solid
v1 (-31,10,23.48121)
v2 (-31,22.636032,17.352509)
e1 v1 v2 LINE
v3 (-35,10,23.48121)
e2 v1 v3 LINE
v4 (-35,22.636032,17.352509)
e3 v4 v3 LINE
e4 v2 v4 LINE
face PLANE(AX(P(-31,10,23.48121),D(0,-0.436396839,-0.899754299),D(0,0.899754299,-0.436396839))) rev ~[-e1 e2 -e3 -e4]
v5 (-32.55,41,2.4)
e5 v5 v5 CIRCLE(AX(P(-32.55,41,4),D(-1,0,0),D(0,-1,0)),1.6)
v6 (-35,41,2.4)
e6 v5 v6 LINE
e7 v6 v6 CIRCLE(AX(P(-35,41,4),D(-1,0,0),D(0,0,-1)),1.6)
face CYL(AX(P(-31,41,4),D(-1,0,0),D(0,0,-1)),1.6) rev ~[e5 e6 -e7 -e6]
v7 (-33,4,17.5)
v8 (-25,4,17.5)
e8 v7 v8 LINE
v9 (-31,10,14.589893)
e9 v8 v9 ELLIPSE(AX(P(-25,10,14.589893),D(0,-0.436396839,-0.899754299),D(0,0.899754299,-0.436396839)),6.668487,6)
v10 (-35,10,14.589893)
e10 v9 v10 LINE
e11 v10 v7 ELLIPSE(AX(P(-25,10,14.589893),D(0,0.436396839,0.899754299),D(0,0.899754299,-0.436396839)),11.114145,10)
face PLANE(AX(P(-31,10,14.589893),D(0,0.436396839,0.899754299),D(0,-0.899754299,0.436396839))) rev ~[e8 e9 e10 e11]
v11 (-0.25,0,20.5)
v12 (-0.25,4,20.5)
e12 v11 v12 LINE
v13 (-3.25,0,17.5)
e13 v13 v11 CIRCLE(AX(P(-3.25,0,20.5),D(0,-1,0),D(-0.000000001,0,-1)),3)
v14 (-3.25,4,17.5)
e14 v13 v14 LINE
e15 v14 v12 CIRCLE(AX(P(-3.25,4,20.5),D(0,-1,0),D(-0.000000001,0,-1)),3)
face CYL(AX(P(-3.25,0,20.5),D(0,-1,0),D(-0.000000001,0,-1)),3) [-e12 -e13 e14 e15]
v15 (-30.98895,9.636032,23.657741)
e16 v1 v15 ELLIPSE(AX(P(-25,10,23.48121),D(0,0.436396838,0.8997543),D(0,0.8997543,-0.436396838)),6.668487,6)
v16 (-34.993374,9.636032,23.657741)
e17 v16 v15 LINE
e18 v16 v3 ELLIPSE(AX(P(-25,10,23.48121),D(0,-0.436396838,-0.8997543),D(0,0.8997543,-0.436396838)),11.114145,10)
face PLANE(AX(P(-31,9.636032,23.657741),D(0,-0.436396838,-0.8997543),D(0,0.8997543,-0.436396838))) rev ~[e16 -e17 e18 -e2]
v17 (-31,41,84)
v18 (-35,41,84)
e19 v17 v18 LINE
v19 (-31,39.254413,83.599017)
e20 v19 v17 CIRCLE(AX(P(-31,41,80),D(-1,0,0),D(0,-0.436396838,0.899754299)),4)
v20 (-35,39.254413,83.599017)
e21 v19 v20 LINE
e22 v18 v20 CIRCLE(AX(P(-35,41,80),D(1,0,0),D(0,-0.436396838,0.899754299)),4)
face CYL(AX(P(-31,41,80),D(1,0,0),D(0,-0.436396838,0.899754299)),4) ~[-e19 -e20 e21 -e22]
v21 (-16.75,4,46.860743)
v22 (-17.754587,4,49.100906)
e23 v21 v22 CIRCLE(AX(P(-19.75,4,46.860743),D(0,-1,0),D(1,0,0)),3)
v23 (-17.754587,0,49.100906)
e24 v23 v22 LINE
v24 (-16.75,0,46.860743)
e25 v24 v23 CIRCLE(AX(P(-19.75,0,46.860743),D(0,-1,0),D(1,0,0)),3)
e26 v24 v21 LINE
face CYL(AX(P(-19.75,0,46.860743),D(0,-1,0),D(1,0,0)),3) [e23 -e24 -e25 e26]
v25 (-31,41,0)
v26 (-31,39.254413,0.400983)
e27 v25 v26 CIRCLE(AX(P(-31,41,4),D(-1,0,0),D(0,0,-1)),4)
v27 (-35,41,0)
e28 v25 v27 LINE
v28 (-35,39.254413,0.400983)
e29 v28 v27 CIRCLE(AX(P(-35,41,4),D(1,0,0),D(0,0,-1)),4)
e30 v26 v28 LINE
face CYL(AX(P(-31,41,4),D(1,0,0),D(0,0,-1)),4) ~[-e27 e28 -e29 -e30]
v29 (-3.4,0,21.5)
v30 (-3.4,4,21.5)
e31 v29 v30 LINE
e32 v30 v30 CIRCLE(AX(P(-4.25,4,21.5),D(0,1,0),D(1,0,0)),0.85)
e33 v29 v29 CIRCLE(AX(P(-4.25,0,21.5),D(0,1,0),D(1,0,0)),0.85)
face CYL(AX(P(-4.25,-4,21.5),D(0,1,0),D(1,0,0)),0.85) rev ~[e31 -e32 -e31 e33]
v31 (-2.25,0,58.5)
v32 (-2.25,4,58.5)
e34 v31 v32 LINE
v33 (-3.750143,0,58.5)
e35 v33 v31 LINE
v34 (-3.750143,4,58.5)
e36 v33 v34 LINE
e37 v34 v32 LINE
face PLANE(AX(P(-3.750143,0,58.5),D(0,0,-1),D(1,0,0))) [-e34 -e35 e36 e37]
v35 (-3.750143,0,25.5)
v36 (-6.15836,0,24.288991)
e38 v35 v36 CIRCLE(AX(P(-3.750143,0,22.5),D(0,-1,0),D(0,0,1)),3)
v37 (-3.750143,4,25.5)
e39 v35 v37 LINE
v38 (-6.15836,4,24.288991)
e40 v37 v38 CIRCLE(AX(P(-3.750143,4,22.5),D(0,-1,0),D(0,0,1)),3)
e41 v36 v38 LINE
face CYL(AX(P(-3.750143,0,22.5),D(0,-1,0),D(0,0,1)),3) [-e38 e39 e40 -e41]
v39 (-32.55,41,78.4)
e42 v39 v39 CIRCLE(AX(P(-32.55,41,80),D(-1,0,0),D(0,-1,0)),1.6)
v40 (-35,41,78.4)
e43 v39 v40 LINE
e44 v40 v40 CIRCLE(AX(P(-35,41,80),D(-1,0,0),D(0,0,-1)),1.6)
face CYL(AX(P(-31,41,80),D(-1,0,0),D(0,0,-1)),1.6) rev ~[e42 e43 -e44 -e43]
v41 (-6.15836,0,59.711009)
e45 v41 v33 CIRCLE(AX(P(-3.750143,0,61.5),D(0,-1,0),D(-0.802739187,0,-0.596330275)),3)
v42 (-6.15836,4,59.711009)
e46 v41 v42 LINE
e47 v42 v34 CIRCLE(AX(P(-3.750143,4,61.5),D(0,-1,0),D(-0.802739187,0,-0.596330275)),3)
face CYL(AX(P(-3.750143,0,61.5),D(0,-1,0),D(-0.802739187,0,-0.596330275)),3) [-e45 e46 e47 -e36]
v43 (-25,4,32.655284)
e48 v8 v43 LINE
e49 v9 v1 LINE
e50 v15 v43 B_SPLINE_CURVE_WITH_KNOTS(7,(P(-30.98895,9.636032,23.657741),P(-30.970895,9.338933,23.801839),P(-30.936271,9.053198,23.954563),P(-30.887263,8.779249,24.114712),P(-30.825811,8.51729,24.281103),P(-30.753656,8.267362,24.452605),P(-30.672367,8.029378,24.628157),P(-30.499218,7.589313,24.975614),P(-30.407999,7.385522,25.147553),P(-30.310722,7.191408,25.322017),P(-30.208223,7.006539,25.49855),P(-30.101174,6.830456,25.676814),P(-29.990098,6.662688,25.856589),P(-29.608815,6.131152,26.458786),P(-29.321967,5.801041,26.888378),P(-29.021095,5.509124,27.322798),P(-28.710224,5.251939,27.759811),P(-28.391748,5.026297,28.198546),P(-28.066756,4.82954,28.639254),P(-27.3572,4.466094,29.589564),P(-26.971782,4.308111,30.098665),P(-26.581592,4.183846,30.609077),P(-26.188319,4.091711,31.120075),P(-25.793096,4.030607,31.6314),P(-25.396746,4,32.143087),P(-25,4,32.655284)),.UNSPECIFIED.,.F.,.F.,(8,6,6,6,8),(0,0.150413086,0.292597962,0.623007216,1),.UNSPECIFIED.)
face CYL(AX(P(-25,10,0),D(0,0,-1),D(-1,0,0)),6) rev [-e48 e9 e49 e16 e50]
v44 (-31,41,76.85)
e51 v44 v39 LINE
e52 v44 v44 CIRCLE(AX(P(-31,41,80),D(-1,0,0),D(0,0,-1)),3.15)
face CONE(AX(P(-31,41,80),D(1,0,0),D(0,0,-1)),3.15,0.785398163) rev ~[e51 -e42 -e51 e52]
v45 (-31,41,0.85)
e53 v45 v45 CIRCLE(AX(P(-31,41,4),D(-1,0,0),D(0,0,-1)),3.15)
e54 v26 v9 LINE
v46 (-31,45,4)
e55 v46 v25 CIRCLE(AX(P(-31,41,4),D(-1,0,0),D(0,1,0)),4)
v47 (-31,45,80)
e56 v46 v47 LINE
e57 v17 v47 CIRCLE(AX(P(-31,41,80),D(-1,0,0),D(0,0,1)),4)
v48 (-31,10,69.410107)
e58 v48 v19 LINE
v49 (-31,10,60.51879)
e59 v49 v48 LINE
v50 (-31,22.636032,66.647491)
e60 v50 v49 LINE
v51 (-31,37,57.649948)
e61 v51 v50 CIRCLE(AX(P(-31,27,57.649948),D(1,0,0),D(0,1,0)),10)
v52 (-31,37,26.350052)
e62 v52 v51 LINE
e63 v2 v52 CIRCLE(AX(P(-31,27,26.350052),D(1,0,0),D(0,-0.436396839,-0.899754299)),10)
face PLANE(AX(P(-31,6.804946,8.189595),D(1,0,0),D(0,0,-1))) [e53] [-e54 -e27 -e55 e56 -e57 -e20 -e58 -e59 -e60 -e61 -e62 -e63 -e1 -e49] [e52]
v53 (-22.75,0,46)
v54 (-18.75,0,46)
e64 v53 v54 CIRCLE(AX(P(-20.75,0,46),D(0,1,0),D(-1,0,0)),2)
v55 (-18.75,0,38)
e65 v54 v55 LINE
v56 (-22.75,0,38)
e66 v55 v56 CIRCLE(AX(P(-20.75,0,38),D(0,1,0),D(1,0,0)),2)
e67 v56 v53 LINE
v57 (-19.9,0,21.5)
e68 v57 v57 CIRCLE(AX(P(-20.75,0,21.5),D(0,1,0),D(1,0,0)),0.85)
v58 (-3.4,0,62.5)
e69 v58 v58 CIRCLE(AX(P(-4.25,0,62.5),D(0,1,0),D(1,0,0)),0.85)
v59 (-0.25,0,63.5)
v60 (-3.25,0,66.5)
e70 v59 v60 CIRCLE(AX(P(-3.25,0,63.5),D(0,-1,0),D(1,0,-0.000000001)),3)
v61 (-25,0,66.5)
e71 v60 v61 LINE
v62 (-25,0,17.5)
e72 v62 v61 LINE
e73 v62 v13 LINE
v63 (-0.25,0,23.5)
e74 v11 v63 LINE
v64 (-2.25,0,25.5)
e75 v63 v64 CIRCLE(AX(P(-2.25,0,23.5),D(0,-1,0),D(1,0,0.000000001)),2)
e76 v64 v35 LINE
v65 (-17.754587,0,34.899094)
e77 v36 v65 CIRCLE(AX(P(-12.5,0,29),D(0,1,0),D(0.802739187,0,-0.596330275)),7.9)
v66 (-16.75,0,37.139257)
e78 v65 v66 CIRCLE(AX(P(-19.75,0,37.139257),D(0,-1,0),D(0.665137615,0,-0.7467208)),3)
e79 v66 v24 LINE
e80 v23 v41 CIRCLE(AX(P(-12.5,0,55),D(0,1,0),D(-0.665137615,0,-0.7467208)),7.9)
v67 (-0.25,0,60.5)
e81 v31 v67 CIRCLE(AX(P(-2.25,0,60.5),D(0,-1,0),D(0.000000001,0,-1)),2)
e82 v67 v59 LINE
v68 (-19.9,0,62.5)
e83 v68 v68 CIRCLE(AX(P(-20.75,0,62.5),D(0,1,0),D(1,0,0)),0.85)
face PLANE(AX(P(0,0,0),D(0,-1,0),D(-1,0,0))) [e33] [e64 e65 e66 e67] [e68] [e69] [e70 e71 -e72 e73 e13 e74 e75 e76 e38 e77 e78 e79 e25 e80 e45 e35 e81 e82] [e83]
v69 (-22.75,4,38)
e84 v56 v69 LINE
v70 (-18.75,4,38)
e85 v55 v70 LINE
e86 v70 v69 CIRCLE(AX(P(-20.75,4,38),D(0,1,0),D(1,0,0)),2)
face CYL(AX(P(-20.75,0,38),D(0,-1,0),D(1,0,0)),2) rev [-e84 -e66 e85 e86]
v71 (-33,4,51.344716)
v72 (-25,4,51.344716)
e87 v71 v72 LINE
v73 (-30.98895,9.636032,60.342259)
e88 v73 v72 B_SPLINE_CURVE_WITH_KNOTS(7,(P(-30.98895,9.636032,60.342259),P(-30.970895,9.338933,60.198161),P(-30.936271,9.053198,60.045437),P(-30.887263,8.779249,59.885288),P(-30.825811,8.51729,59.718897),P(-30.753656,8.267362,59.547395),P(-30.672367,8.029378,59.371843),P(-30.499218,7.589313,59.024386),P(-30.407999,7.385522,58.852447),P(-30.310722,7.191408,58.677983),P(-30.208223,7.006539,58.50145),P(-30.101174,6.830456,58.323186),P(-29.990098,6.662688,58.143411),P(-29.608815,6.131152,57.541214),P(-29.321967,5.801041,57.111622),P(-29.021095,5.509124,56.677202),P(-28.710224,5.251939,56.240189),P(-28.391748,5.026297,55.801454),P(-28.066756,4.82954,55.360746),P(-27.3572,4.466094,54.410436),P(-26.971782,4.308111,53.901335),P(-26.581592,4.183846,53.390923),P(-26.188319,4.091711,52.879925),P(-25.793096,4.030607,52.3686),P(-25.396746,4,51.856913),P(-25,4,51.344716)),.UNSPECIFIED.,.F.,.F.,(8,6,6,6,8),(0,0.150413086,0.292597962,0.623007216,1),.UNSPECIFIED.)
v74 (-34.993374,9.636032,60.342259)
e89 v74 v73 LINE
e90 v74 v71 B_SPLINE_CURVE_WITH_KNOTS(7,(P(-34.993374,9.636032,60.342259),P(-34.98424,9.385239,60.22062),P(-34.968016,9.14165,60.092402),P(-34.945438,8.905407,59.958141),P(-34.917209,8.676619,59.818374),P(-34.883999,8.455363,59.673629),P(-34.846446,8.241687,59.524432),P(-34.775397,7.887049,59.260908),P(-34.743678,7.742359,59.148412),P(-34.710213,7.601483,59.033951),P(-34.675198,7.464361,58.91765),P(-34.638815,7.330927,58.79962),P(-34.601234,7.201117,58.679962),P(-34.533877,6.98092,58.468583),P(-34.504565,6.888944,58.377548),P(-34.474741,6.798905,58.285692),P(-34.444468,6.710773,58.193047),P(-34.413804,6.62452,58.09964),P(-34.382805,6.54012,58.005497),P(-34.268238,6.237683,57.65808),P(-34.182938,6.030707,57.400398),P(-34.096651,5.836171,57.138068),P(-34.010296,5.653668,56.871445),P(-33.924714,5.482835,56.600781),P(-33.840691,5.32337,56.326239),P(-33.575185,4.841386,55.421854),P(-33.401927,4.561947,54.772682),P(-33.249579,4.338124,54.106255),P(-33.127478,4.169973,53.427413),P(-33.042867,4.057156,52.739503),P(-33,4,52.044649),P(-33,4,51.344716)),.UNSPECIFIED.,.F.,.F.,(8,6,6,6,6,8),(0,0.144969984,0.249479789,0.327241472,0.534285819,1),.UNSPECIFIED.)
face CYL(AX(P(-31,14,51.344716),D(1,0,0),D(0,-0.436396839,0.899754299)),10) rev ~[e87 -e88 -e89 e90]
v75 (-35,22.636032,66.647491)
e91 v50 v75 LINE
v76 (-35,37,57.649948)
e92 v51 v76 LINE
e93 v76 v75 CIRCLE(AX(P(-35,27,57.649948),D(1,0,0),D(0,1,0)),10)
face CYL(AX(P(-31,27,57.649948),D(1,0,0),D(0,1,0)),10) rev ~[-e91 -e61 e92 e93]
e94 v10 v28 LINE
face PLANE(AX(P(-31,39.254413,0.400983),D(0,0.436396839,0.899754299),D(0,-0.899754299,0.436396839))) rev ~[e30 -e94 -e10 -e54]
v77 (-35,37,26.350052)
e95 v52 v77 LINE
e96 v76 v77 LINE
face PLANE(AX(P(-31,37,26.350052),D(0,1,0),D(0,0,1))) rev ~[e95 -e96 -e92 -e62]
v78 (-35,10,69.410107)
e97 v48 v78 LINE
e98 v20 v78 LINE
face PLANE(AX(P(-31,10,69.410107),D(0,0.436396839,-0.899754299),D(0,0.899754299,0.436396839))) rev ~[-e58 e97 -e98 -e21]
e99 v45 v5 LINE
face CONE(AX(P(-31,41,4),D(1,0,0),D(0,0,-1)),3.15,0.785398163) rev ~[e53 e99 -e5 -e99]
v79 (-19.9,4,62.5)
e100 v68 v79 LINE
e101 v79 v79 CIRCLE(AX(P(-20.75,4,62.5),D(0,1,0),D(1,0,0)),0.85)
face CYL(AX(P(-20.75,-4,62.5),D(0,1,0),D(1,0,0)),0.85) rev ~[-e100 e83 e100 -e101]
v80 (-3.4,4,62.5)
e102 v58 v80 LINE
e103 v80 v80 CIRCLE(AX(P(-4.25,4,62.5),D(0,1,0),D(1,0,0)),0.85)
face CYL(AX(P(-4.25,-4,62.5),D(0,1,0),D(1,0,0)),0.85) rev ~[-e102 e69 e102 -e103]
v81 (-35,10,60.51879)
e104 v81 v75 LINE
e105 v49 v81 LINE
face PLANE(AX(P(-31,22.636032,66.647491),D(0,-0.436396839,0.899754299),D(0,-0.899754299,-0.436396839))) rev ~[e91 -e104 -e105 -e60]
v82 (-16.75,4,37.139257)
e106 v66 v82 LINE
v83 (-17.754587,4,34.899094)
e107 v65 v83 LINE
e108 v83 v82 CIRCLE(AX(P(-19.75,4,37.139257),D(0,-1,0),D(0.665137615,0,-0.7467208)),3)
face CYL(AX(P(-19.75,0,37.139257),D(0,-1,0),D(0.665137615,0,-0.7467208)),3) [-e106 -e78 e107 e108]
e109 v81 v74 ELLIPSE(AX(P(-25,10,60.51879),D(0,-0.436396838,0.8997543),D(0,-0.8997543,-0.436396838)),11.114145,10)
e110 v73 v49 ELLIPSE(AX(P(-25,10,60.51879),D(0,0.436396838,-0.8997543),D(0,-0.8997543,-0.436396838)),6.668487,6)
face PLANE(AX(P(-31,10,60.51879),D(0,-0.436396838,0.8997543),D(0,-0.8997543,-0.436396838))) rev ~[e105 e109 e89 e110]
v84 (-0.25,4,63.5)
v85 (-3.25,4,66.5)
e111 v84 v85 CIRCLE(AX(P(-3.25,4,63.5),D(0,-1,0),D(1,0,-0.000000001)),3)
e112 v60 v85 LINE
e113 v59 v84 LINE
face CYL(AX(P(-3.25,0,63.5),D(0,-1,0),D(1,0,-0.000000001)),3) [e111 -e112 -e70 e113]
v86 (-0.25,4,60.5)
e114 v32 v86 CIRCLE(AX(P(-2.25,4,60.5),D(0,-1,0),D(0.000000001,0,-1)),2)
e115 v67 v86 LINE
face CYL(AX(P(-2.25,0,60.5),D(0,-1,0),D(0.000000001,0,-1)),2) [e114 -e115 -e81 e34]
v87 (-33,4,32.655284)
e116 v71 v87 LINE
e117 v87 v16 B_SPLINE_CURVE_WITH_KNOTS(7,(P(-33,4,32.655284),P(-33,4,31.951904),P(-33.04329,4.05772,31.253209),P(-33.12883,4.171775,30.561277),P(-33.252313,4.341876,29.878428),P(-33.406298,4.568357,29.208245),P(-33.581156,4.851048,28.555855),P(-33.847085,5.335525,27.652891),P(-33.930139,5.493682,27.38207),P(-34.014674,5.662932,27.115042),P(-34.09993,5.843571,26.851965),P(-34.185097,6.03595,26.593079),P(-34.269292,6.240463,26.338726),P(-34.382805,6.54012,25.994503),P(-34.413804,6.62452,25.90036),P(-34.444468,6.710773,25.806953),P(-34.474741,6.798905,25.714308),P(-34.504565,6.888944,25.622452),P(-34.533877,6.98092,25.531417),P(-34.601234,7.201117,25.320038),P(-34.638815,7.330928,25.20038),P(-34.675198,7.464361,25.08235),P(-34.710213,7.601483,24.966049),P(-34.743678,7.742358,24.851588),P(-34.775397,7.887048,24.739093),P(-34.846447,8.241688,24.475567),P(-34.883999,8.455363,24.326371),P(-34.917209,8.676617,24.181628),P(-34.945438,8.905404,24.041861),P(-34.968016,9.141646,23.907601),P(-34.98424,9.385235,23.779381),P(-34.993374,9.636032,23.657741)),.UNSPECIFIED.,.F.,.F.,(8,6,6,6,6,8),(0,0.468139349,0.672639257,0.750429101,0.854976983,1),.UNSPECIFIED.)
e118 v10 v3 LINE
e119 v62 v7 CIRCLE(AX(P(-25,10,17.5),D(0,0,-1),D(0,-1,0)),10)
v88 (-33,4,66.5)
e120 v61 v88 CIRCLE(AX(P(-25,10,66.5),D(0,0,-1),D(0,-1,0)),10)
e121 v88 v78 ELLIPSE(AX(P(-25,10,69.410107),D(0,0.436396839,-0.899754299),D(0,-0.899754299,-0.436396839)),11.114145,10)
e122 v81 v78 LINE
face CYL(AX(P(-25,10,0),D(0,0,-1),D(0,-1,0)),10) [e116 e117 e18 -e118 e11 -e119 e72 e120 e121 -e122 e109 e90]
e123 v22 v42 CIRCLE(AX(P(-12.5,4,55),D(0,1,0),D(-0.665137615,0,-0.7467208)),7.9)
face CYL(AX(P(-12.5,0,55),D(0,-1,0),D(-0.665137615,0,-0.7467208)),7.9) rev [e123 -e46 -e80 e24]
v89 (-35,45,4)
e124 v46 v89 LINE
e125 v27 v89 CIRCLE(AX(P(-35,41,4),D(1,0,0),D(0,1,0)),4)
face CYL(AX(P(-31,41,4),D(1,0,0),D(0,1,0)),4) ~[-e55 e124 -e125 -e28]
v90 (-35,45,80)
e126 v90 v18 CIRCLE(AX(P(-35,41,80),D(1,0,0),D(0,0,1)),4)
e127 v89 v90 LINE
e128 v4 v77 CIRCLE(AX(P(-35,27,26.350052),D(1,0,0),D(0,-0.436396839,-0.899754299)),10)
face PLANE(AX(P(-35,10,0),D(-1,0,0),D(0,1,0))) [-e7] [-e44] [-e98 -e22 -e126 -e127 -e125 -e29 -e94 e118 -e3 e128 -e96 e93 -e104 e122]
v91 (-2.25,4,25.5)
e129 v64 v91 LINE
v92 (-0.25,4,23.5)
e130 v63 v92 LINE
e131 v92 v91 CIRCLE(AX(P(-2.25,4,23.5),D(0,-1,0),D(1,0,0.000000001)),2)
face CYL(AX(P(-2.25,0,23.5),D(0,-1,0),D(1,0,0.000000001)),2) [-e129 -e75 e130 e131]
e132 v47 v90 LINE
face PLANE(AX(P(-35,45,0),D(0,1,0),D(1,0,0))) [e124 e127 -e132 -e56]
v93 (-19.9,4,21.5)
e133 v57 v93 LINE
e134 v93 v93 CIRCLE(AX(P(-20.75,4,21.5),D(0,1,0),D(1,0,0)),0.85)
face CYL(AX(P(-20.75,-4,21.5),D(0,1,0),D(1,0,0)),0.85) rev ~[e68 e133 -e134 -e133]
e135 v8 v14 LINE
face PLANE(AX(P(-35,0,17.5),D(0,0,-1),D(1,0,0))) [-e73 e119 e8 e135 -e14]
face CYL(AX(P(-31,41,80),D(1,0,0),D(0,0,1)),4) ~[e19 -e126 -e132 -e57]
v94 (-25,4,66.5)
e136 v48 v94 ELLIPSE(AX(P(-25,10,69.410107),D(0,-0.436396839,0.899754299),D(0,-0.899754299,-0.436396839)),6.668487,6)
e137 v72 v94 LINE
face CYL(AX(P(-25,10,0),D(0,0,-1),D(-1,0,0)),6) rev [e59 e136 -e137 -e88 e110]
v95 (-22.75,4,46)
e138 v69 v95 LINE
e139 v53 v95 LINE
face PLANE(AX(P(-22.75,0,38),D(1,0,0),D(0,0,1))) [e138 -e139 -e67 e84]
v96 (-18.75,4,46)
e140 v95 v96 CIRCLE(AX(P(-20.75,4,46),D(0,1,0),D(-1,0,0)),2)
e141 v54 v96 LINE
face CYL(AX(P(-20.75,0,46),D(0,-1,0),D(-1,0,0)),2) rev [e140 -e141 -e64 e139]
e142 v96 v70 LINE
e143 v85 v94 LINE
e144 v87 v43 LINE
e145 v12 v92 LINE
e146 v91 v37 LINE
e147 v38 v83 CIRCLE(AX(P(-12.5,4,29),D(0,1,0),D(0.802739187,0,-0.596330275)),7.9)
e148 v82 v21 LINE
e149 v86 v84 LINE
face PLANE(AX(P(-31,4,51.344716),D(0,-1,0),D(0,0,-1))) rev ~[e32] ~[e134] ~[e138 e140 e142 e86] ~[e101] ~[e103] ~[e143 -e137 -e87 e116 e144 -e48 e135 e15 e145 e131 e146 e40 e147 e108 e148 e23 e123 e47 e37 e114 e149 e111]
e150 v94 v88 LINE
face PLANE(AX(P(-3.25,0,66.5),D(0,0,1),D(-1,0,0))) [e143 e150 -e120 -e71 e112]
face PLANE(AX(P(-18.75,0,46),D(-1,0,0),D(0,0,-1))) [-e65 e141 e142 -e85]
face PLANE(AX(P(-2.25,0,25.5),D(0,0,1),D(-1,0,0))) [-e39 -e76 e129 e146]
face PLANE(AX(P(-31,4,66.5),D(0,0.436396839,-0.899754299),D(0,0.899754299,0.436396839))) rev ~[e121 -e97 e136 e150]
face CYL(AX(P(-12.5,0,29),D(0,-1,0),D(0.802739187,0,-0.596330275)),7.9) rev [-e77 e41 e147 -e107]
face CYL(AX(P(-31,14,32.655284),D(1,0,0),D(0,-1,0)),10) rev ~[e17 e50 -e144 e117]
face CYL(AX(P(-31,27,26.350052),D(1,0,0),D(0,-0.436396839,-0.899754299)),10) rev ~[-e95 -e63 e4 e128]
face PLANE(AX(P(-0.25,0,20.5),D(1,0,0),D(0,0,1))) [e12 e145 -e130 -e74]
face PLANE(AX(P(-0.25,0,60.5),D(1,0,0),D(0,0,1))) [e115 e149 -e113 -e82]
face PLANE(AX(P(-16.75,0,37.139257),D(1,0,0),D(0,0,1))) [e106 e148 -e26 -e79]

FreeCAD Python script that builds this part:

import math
import FreeCAD as App
import Part
import Sketcher

doc = App.newDocument("Part")
body = doc.addObject("PartDesign::Body", "Body")

sketch1 = body.newObject("Sketcher::SketchObject", "Sketch")
sketch1.AttachmentSupport = (doc.getObject("XY_Plane"), [""])
sketch1.MapMode = "FlatFace"
sketch1.addGeometry(Part.LineSegment(App.Vector(-25, 0, 0), App.Vector(0, 0, 0)), False)
sketch1.addGeometry(Part.LineSegment(App.Vector(0, 0, 0), App.Vector(0, 4, 0)), False)
sketch1.addGeometry(Part.LineSegment(App.Vector(0, 4, 0), App.Vector(-25, 4, 0)), False)
sketch1.addGeometry(Part.ArcOfCircle(Part.Circle(App.Vector(-25, 10, 0), App.Vector(0, 0, 1), 6), math.radians(180), math.radians(270)), False)
sketch1.addGeometry(Part.LineSegment(App.Vector(-31, 10, 0), App.Vector(-31, 45, 0)), False)
sketch1.addGeometry(Part.LineSegment(App.Vector(-31, 45, 0), App.Vector(-35, 45, 0)), False)
sketch1.addGeometry(Part.LineSegment(App.Vector(-35, 45, 0), App.Vector(-35, 10, 0)), False)
sketch1.addGeometry(Part.ArcOfCircle(Part.Circle(App.Vector(-25, 10, 0), App.Vector(0, 0, 1), 10), math.radians(180), math.radians(270)), False)
sketch1.addConstraint(Sketcher.Constraint("Coincident", 0, 2, 1, 1))
sketch1.addConstraint(Sketcher.Constraint("Coincident", 1, 2, 2, 1))
sketch1.addConstraint(Sketcher.Constraint("Tangent", 2, 2, 3, 2))
sketch1.addConstraint(Sketcher.Constraint("Tangent", 3, 1, 4, 1))
sketch1.addConstraint(Sketcher.Constraint("Coincident", 4, 2, 5, 1))
sketch1.addConstraint(Sketcher.Constraint("Coincident", 5, 2, 6, 1))
sketch1.addConstraint(Sketcher.Constraint("Tangent", 6, 2, 7, 1))
sketch1.addConstraint(Sketcher.Constraint("Tangent", 7, 2, 0, 1))
sketch1.addConstraint(Sketcher.Constraint("Horizontal", 0))
sketch1.addConstraint(Sketcher.Constraint("Vertical", 1))
sketch1.addConstraint(Sketcher.Constraint("Horizontal", 2))
sketch1.addConstraint(Sketcher.Constraint("Vertical", 4))
sketch1.addConstraint(Sketcher.Constraint("Horizontal", 5))
sketch1.addConstraint(Sketcher.Constraint("Vertical", 6))
sketch1.addConstraint(Sketcher.Constraint("Coincident", 0, 2, -1, 1))
sketch1.addConstraint(Sketcher.Constraint("Coincident", 7, 3, 3, 3))
sketch1.addConstraint(Sketcher.Constraint("Radius", 3, 6.0))
sketch1.addConstraint(Sketcher.Constraint("Radius", 7, 10.0))
sketch1.addConstraint(Sketcher.Constraint("DistanceX", 0, 1, 0, 2, 25.0))
sketch1.addConstraint(Sketcher.Constraint("DistanceY", 4, 1, 4, 2, 35.0))
pad1 = body.newObject("PartDesign::Pad", "Pad")
pad1.Profile = sketch1
pad1.Length = 84

sketch2 = body.newObject("Sketcher::SketchObject", "Sketch001")
sketch2.AttachmentSupport = (doc.getObject("YZ_Plane"), [""])
sketch2.MapMode = "FlatFace"
sketch2.AttachmentOffset = App.Placement(App.Vector(0, 0, -31), App.Rotation())
sketch2.addGeometry(Part.Circle(App.Vector(41, 4, 0), App.Vector(0, 0, 1), 1.6), False)
sketch2.addGeometry(Part.Circle(App.Vector(41, 80, 0), App.Vector(0, 0, 1), 1.6), False)
sketch2.addConstraint(Sketcher.Constraint("Equal", 0, 1))
sketch2.addConstraint(Sketcher.Constraint("Vertical", 0, 3, 1, 3))
sketch2.addConstraint(Sketcher.Constraint("Diameter", 0, 3.2))
sketch2.addConstraint(Sketcher.Constraint("DistanceX", -1, 1, 0, 3, 41.0))
sketch2.addConstraint(Sketcher.Constraint("DistanceY", -1, 1, 0, 3, 4.0))
sketch2.addConstraint(Sketcher.Constraint("DistanceY", -1, 1, 1, 3, 80.0))
doc.recompute()
hole = body.newObject("PartDesign::Hole", "Hole")
hole.Profile = sketch2
hole.ThreadType = "None"
hole.Diameter = 3.2
hole.DepthType = "Dimension"
hole.Depth = 4
hole.DrillPoint = "Flat"
hole.HoleCutType = "Countersink"
hole.HoleCutDiameter = 6.3
hole.HoleCutCountersinkAngle = 90

sketch3 = body.newObject("Sketcher::SketchObject", "Sketch002")
sketch3.AttachmentSupport = (doc.getObject("XZ_Plane"), [""])
sketch3.MapMode = "FlatFace"
sketch3.addGeometry(Part.Circle(App.Vector(-20.8, 21.5, 0), App.Vector(0, 0, 1), 0.8), False)
sketch3.addGeometry(Part.Circle(App.Vector(-20.8, 62.5, 0), App.Vector(0, 0, 1), 0.8), False)
sketch3.addGeometry(Part.Circle(App.Vector(-4.2, 62.5, 0), App.Vector(0, 0, 1), 0.8), False)
sketch3.addGeometry(Part.Circle(App.Vector(-4.2, 21.5, 0), App.Vector(0, 0, 1), 0.8), False)
sketch3.addConstraint(Sketcher.Constraint("Equal", 0, 1))
sketch3.addConstraint(Sketcher.Constraint("Equal", 1, 2))
sketch3.addConstraint(Sketcher.Constraint("Equal", 2, 3))
sketch3.addConstraint(Sketcher.Constraint("Horizontal", 1, 3, 2, 3))
sketch3.addConstraint(Sketcher.Constraint("Horizontal", 0, 3, 3, 3))
sketch3.addConstraint(Sketcher.Constraint("Vertical", 0, 3, 1, 3))
sketch3.addConstraint(Sketcher.Constraint("Vertical", 2, 3, 3, 3))
sketch3.addConstraint(Sketcher.Constraint("Diameter", 0, 1.7))
sketch3.addConstraint(Sketcher.Constraint("DistanceY", 0, 3, 1, 3, 41.0))
sketch3.addConstraint(Sketcher.Constraint("DistanceY", -1, 1, 0, 3, 21.5))
sketch3.addConstraint(Sketcher.Constraint("DistanceX", 1, 3, 2, 3, 16.5))
sketch3.addConstraint(Sketcher.Constraint("DistanceX", 0, 3, -1, 1, 20.75))
doc.recompute()
hole2 = body.newObject("PartDesign::Hole", "Hole001")
hole2.Profile = sketch3
hole2.ThreadType = "None"
hole2.Diameter = 1.7
hole2.DepthType = "Dimension"
hole2.Depth = 4
hole2.DrillPoint = "Flat"

sketch4 = body.newObject("Sketcher::SketchObject", "Sketch003")
sketch4.AttachmentSupport = (doc.getObject("XZ_Plane"), [""])
sketch4.MapMode = "FlatFace"
sketch4.addGeometry(Part.LineSegment(App.Vector(-3.2, 17.5, 0), App.Vector(-35, 17.5, 0)), False)
sketch4.addGeometry(Part.LineSegment(App.Vector(-35, 17.5, 0), App.Vector(-35, 0, 0)), False)
sketch4.addGeometry(Part.LineSegment(App.Vector(-35, 0, 0), App.Vector(0, 0, 0)), False)
sketch4.addGeometry(Part.LineSegment(App.Vector(0, 0, 0), App.Vector(0, 84, 0)), False)
sketch4.addGeometry(Part.LineSegment(App.Vector(0, 84, 0), App.Vector(-35, 84, 0)), False)
sketch4.addGeometry(Part.LineSegment(App.Vector(-35, 84, 0), App.Vector(-35, 66.5, 0)), False)
sketch4.addGeometry(Part.LineSegment(App.Vector(-35, 66.5, 0), App.Vector(-3.2, 66.5, 0)), False)
sketch4.addGeometry(Part.ArcOfCircle(Part.Circle(App.Vector(-3.2, 63.5, 0), App.Vector(0, 0, 1), 3), math.radians(0), math.radians(90)), False)
sketch4.addGeometry(Part.LineSegment(App.Vector(-0.2, 63.5, 0), App.Vector(-0.2, 60.5, 0)), False)
sketch4.addGeometry(Part.ArcOfCircle(Part.Circle(App.Vector(-2.3, 60.5, 0), App.Vector(0, 0, 1), 2), math.radians(-90), math.radians(0)), False)
sketch4.addGeometry(Part.LineSegment(App.Vector(-2.2, 58.5, 0), App.Vector(-3.8, 58.5, 0)), False)
sketch4.addGeometry(Part.ArcOfCircle(Part.Circle(App.Vector(-3.8, 61.5, 0), App.Vector(0, 0, 1), 3), math.radians(-143), math.radians(-90)), False)
sketch4.addGeometry(Part.ArcOfCircle(Part.Circle(App.Vector(-12.5, 55, 0), App.Vector(0, 0, 1), 7.9), math.radians(37), math.radians(228)), False)
sketch4.addGeometry(Part.ArcOfCircle(Part.Circle(App.Vector(-19.8, 46.9, 0), App.Vector(0, 0, 1), 3), math.radians(0), math.radians(48)), False)
sketch4.addGeometry(Part.LineSegment(App.Vector(-16.8, 46.9, 0), App.Vector(-16.8, 37.1, 0)), False)
sketch4.addGeometry(Part.ArcOfCircle(Part.Circle(App.Vector(-19.8, 37.1, 0), App.Vector(0, 0, 1), 3), math.radians(-48), math.radians(0)), False)
sketch4.addGeometry(Part.ArcOfCircle(Part.Circle(App.Vector(-12.5, 29, 0), App.Vector(0, 0, 1), 7.9), math.radians(132), math.radians(323)), False)
sketch4.addGeometry(Part.ArcOfCircle(Part.Circle(App.Vector(-3.8, 22.5, 0), App.Vector(0, 0, 1), 3), math.radians(90), math.radians(143)), False)
sketch4.addGeometry(Part.LineSegment(App.Vector(-3.8, 25.5, 0), App.Vector(-2.2, 25.5, 0)), False)
sketch4.addGeometry(Part.ArcOfCircle(Part.Circle(App.Vector(-2.3, 23.5, 0), App.Vector(0, 0, 1), 2), math.radians(0), math.radians(90)), False)
sketch4.addGeometry(Part.LineSegment(App.Vector(-0.2, 23.5, 0), App.Vector(-0.2, 20.5, 0)), False)
sketch4.addGeometry(Part.ArcOfCircle(Part.Circle(App.Vector(-3.2, 20.5, 0), App.Vector(0, 0, 1), 3), math.radians(-90), math.radians(0)), False)
sketch4.addGeometry(Part.LineSegment(App.Vector(-18.8, 38, 0), App.Vector(-18.8, 46, 0)), False)
sketch4.addGeometry(Part.ArcOfCircle(Part.Circle(App.Vector(-20.8, 46, 0), App.Vector(0, 0, 1), 2), math.radians(0), math.radians(180)), False)
sketch4.addGeometry(Part.LineSegment(App.Vector(-22.8, 46, 0), App.Vector(-22.8, 38, 0)), False)
sketch4.addGeometry(Part.ArcOfCircle(Part.Circle(App.Vector(-20.8, 38, 0), App.Vector(0, 0, 1), 2), math.radians(180), math.radians(360)), False)
sketch4.addConstraint(Sketcher.Constraint("Coincident", 0, 2, 1, 1))
sketch4.addConstraint(Sketcher.Constraint("Coincident", 1, 2, 2, 1))
sketch4.addConstraint(Sketcher.Constraint("Coincident", 2, 2, 3, 1))
sketch4.addConstraint(Sketcher.Constraint("Coincident", 3, 2, 4, 1))
sketch4.addConstraint(Sketcher.Constraint("Coincident", 4, 2, 5, 1))
sketch4.addConstraint(Sketcher.Constraint("Coincident", 5, 2, 6, 1))
sketch4.addConstraint(Sketcher.Constraint("Tangent", 6, 2, 7, 2))
sketch4.addConstraint(Sketcher.Constraint("Tangent", 7, 1, 8, 1))
sketch4.addConstraint(Sketcher.Constraint("Tangent", 8, 2, 9, 2))
sketch4.addConstraint(Sketcher.Constraint("Tangent", 9, 1, 10, 1))
sketch4.addConstraint(Sketcher.Constraint("Tangent", 10, 2, 11, 2))
sketch4.addConstraint(Sketcher.Constraint("Tangent", 11, 1, 12, 1))
sketch4.addConstraint(Sketcher.Constraint("Tangent", 12, 2, 13, 2))
sketch4.addConstraint(Sketcher.Constraint("Tangent", 13, 1, 14, 1))
sketch4.addConstraint(Sketcher.Constraint("Tangent", 14, 2, 15, 2))
sketch4.addConstraint(Sketcher.Constraint("Tangent", 15, 1, 16, 1))
sketch4.addConstraint(Sketcher.Constraint("Tangent", 16, 2, 17, 2))
sketch4.addConstraint(Sketcher.Constraint("Tangent", 17, 1, 18, 1))
sketch4.addConstraint(Sketcher.Constraint("Tangent", 18, 2, 19, 2))
sketch4.addConstraint(Sketcher.Constraint("Tangent", 19, 1, 20, 1))
sketch4.addConstraint(Sketcher.Constraint("Tangent", 20, 2, 21, 2))
sketch4.addConstraint(Sketcher.Constraint("Tangent", 21, 1, 0, 1))
sketch4.addConstraint(Sketcher.Constraint("Tangent", 22, 2, 23, 1))
sketch4.addConstraint(Sketcher.Constraint("Tangent", 23, 2, 24, 1))
sketch4.addConstraint(Sketcher.Constraint("Tangent", 24, 2, 25, 1))
sketch4.addConstraint(Sketcher.Constraint("Tangent", 25, 2, 22, 1))
sketch4.addConstraint(Sketcher.Constraint("Horizontal", 0))
sketch4.addConstraint(Sketcher.Constraint("Vertical", 1))
sketch4.addConstraint(Sketcher.Constraint("Horizontal", 2))
sketch4.addConstraint(Sketcher.Constraint("Vertical", 3))
sketch4.addConstraint(Sketcher.Constraint("Horizontal", 4))
sketch4.addConstraint(Sketcher.Constraint("Vertical", 5))
sketch4.addConstraint(Sketcher.Constraint("Horizontal", 6))
sketch4.addConstraint(Sketcher.Constraint("Vertical", 8))
sketch4.addConstraint(Sketcher.Constraint("Horizontal", 10))
sketch4.addConstraint(Sketcher.Constraint("Vertical", 14))
sketch4.addConstraint(Sketcher.Constraint("Horizontal", 18))
sketch4.addConstraint(Sketcher.Constraint("Vertical", 20))
sketch4.addConstraint(Sketcher.Constraint("Vertical", 22))
sketch4.addConstraint(Sketcher.Constraint("Vertical", 24))
sketch4.addConstraint(Sketcher.Constraint("Coincident", 2, 2, -1, 1))
sketch4.addConstraint(Sketcher.Constraint("Equal", 7, 11))
sketch4.addConstraint(Sketcher.Constraint("Equal", 11, 13))
sketch4.addConstraint(Sketcher.Constraint("Equal", 13, 15))
sketch4.addConstraint(Sketcher.Constraint("Equal", 12, 16))
sketch4.addConstraint(Sketcher.Constraint("Equal", 15, 17))
sketch4.addConstraint(Sketcher.Constraint("Equal", 9, 19))
sketch4.addConstraint(Sketcher.Constraint("Equal", 17, 21))
sketch4.addConstraint(Sketcher.Constraint("Equal", 19, 23))
sketch4.addConstraint(Sketcher.Constraint("Vertical", 12, 3, 16, 3))
sketch4.addConstraint(Sketcher.Constraint("Vertical", 11, 3, 17, 3))
sketch4.addConstraint(Sketcher.Constraint("Vertical", 9, 3, 19, 3))
sketch4.addConstraint(Sketcher.Constraint("Vertical", 1, 2, 4, 2))
sketch4.addConstraint(Sketcher.Constraint("Equal", 1, 5))
sketch4.addConstraint(Sketcher.Constraint("Equal", 8, 20))
sketch4.addConstraint(Sketcher.Constraint("Radius", 7, 3.0))
sketch4.addConstraint(Sketcher.Constraint("Radius", 9, 2.0))
sketch4.addConstraint(Sketcher.Constraint("Radius", 12, 7.9))
sketch4.addConstraint(Sketcher.Constraint("DistanceX", 2, 1, 2, 2, 35.0))
sketch4.addConstraint(Sketcher.Constraint("DistanceY", 3, 1, 3, 2, 84.0))
sketch4.addConstraint(Sketcher.Constraint("DistanceY", 8, 2, 8, 1, 3.0))
sketch4.addConstraint(Sketcher.Constraint("DistanceY", 22, 1, 22, 2, 8.0))
sketch4.addConstraint(Sketcher.Constraint("DistanceY", 1, 2, 1, 1, 17.5))
sketch4.addConstraint(Sketcher.Constraint("DistanceY", -1, 1, 12, 3, 55.0))
sketch4.addConstraint(Sketcher.Constraint("DistanceY", -1, 1, 23, 3, 46.0))
sketch4.addConstraint(Sketcher.Constraint("DistanceX", 23, 3, 13, 3, 1.0))
sketch4.addConstraint(Sketcher.Constraint("DistanceX", 0, 2, 0, 1, 31.75))
sketch4.addConstraint(Sketcher.Constraint("DistanceX", 12, 3, -1, 1, 12.5))
sketch4.addConstraint(Sketcher.Constraint("DistanceX", 13, 3, 9, 3, 17.5))
pocket1 = body.newObject("PartDesign::Pocket", "Pocket")
pocket1.Profile = sketch4
pocket1.Length = 4

sketch5 = body.newObject("Sketcher::SketchObject", "Sketch004")
sketch5.AttachmentSupport = (doc.getObject("YZ_Plane"), [""])
sketch5.MapMode = "FlatFace"
sketch5.AttachmentOffset = App.Placement(App.Vector(0, 0, -31), App.Rotation())
sketch5.addGeometry(Part.LineSegment(App.Vector(10, 23.48, 0), App.Vector(22.64, 17.35, 0)), False)
sketch5.addGeometry(Part.ArcOfCircle(Part.Circle(App.Vector(27, 26.35, 0), App.Vector(0, 0, 1), 10), math.radians(-116), math.radians(0)), False)
sketch5.addGeometry(Part.LineSegment(App.Vector(37, 26.35, 0), App.Vector(37, 57.65, 0)), False)
sketch5.addGeometry(Part.ArcOfCircle(Part.Circle(App.Vector(27, 57.65, 0), App.Vector(0, 0, 1), 10), math.radians(0), math.radians(116)), False)
sketch5.addGeometry(Part.LineSegment(App.Vector(22.64, 66.65, 0), App.Vector(10, 60.52, 0)), False)
sketch5.addGeometry(Part.LineSegment(App.Vector(10, 60.52, 0), App.Vector(9.64, 60.34, 0)), False)
sketch5.addGeometry(Part.ArcOfCircle(Part.Circle(App.Vector(14, 51.34, 0), App.Vector(0, 0, 1), 10), math.radians(116), math.radians(180)), False)
sketch5.addGeometry(Part.LineSegment(App.Vector(4, 51.34, 0), App.Vector(4, 32.66, 0)), False)
sketch5.addGeometry(Part.ArcOfCircle(Part.Circle(App.Vector(14, 32.66, 0), App.Vector(0, 0, 1), 10), math.radians(180), math.radians(244)), False)
sketch5.addGeometry(Part.LineSegment(App.Vector(9.64, 23.66, 0), App.Vector(10, 23.48, 0)), False)
sketch5.addGeometry(Part.LineSegment(App.Vector(4, 0, 0), App.Vector(41, 0, 0)), False)
sketch5.addGeometry(Part.ArcOfCircle(Part.Circle(App.Vector(41, 4, 0), App.Vector(0, 0, 1), 4), math.radians(-116), math.radians(-90)), False)
sketch5.addGeometry(Part.LineSegment(App.Vector(39.25, 0.4, 0), App.Vector(10, 14.59, 0)), False)
sketch5.addGeometry(Part.LineSegment(App.Vector(10, 14.59, 0), App.Vector(4, 17.5, 0)), False)
sketch5.addGeometry(Part.LineSegment(App.Vector(4, 17.5, 0), App.Vector(4, 0, 0)), False)
sketch5.addGeometry(Part.ArcOfCircle(Part.Circle(App.Vector(41, 4, 0), App.Vector(0, 0, 1), 4), math.radians(-90), math.radians(0)), False)
sketch5.addGeometry(Part.LineSegment(App.Vector(41, 0, 0), App.Vector(45, 0, 0)), False)
sketch5.addGeometry(Part.LineSegment(App.Vector(45, 0, 0), App.Vector(45, 4, 0)), False)
sketch5.addGeometry(Part.ArcOfCircle(Part.Circle(App.Vector(41, 80, 0), App.Vector(0, 0, 1), 4), math.radians(90), math.radians(116)), False)
sketch5.addGeometry(Part.LineSegment(App.Vector(41, 84, 0), App.Vector(4, 84, 0)), False)
sketch5.addGeometry(Part.LineSegment(App.Vector(4, 84, 0), App.Vector(4, 66.5, 0)), False)
sketch5.addGeometry(Part.LineSegment(App.Vector(4, 66.5, 0), App.Vector(10, 69.41, 0)), False)
sketch5.addGeometry(Part.LineSegment(App.Vector(10, 69.41, 0), App.Vector(39.25, 83.6, 0)), False)
sketch5.addGeometry(Part.ArcOfCircle(Part.Circle(App.Vector(41, 80, 0), App.Vector(0, 0, 1), 4), math.radians(0), math.radians(90)), False)
sketch5.addGeometry(Part.LineSegment(App.Vector(45, 80, 0), App.Vector(45, 84, 0)), False)
sketch5.addGeometry(Part.LineSegment(App.Vector(45, 84, 0), App.Vector(41, 84, 0)), False)
sketch5.addConstraint(Sketcher.Constraint("Tangent", 0, 2, 1, 1))
sketch5.addConstraint(Sketcher.Constraint("Tangent", 1, 2, 2, 1))
sketch5.addConstraint(Sketcher.Constraint("Tangent", 2, 2, 3, 1))
sketch5.addConstraint(Sketcher.Constraint("Tangent", 3, 2, 4, 1))
sketch5.addConstraint(Sketcher.Constraint("Coincident", 4, 2, 5, 1))
sketch5.addConstraint(Sketcher.Constraint("Tangent", 5, 2, 6, 1))
sketch5.addConstraint(Sketcher.Constraint("Tangent", 6, 2, 7, 1))
sketch5.addConstraint(Sketcher.Constraint("Tangent", 7, 2, 8, 1))
sketch5.addConstraint(Sketcher.Constraint("Tangent", 8, 2, 9, 1))
sketch5.addConstraint(Sketcher.Constraint("Coincident", 9, 2, 0, 1))
sketch5.addConstraint(Sketcher.Constraint("Tangent", 10, 2, 11, 2))
sketch5.addConstraint(Sketcher.Constraint("Tangent", 11, 1, 12, 1))
sketch5.addConstraint(Sketcher.Constraint("Coincident", 12, 2, 13, 1))
sketch5.addConstraint(Sketcher.Constraint("Coincident", 13, 2, 14, 1))
sketch5.addConstraint(Sketcher.Constraint("Coincident", 14, 2, 10, 1))
sketch5.addConstraint(Sketcher.Constraint("Tangent", 15, 1, 16, 1))
sketch5.addConstraint(Sketcher.Constraint("Coincident", 16, 2, 17, 1))
sketch5.addConstraint(Sketcher.Constraint("Tangent", 17, 2, 15, 2))
sketch5.addConstraint(Sketcher.Constraint("Tangent", 18, 1, 19, 1))
sketch5.addConstraint(Sketcher.Constraint("Coincident", 19, 2, 20, 1))
sketch5.addConstraint(Sketcher.Constraint("Coincident", 20, 2, 21, 1))
sketch5.addConstraint(Sketcher.Constraint("Coincident", 21, 2, 22, 1))
sketch5.addConstraint(Sketcher.Constraint("Tangent", 22, 2, 18, 2))
sketch5.addConstraint(Sketcher.Constraint("Tangent", 23, 1, 24, 1))
sketch5.addConstraint(Sketcher.Constraint("Coincident", 24, 2, 25, 1))
sketch5.addConstraint(Sketcher.Constraint("Tangent", 25, 2, 23, 2))
sketch5.addConstraint(Sketcher.Constraint("Vertical", 2))
sketch5.addConstraint(Sketcher.Constraint("Vertical", 7))
sketch5.addConstraint(Sketcher.Constraint("Horizontal", 10))
sketch5.addConstraint(Sketcher.Constraint("Vertical", 14))
sketch5.addConstraint(Sketcher.Constraint("Horizontal", 16))
sketch5.addConstraint(Sketcher.Constraint("Vertical", 17))
sketch5.addConstraint(Sketcher.Constraint("Horizontal", 19))
sketch5.addConstraint(Sketcher.Constraint("Vertical", 20))
sketch5.addConstraint(Sketcher.Constraint("Vertical", 24))
sketch5.addConstraint(Sketcher.Constraint("Horizontal", 25))
sketch5.addConstraint(Sketcher.Constraint("Coincident", 15, 3, 11, 3))
sketch5.addConstraint(Sketcher.Constraint("Coincident", 23, 3, 18, 3))
sketch5.addConstraint(Sketcher.Constraint("Equal", 1, 3))
sketch5.addConstraint(Sketcher.Constraint("Equal", 3, 6))
sketch5.addConstraint(Sketcher.Constraint("Equal", 6, 8))
sketch5.addConstraint(Sketcher.Constraint("Equal", 11, 15))
sketch5.addConstraint(Sketcher.Constraint("Equal", 15, 18))
sketch5.addConstraint(Sketcher.Constraint("Equal", 18, 23))
sketch5.addConstraint(Sketcher.Constraint("PointOnObject", 10, 2, -1))
sketch5.addConstraint(Sketcher.Constraint("Parallel", 4, 5))
sketch5.addConstraint(Sketcher.Constraint("Parallel", 0, 9))
sketch5.addConstraint(Sketcher.Constraint("Parallel", 9, 12))
sketch5.addConstraint(Sketcher.Constraint("Parallel", 12, 13))
sketch5.addConstraint(Sketcher.Constraint("Parallel", 5, 21))
sketch5.addConstraint(Sketcher.Constraint("Parallel", 21, 22))
sketch5.addConstraint(Sketcher.Constraint("Vertical", 15, 3, 18, 3))
sketch5.addConstraint(Sketcher.Constraint("Vertical", 0, 2, 3, 2))
sketch5.addConstraint(Sketcher.Constraint("Vertical", 4, 2, 9, 2))
sketch5.addConstraint(Sketcher.Constraint("Vertical", 9, 2, 12, 2))
sketch5.addConstraint(Sketcher.Constraint("Vertical", 7, 2, 13, 2))
sketch5.addConstraint(Sketcher.Constraint("Vertical", 14, 2, 19, 2))
sketch5.addConstraint(Sketcher.Constraint("Vertical", 12, 2, 21, 2))
sketch5.addConstraint(Sketcher.Constraint("Radius", 1, 10.0))
sketch5.addConstraint(Sketcher.Constraint("Radius", 11, 4.0))
sketch5.addConstraint(Sketcher.Constraint("DistanceX", 10, 1, 10, 2, 37.0))
sketch5.addConstraint(Sketcher.Constraint("DistanceY", 14, 2, 14, 1, 17.5))
sketch5.addConstraint(Sketcher.Constraint("DistanceX", -1, 1, 1, 3, 27.0))
sketch5.addConstraint(Sketcher.Constraint("DistanceX", -1, 1, 6, 3, 14.0))
sketch5.addConstraint(Sketcher.Constraint("DistanceY", -1, 1, 18, 3, 80.0))
sketch5.addConstraint(Sketcher.Constraint("DistanceX", -1, 1, 4, 2, 10.0))
sketch5.addConstraint(Sketcher.Constraint("DistanceY", 2, 1, 2, 2, 31.299895))
sketch5.addConstraint(Sketcher.Constraint("DistanceY", -1, 1, 0, 2, 17.352509))
pocket2 = body.newObject("PartDesign::Pocket", "Pocket001")
pocket2.Profile = sketch5
pocket2.Type = "ThroughAll"
pocket2.Midplane = True

doc.recompute()
